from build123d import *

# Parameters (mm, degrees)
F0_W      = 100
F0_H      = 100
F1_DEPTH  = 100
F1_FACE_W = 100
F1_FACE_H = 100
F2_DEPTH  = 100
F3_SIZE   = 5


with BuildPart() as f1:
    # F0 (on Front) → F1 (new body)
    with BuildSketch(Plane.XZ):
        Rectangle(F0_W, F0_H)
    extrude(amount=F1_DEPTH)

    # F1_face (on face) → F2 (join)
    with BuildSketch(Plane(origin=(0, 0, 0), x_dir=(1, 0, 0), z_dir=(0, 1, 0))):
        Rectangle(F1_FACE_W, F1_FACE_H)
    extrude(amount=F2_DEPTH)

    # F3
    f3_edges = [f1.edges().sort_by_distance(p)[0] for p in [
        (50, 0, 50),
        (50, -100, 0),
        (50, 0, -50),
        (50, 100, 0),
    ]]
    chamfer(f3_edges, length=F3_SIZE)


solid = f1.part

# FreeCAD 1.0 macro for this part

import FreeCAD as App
import Part
import Sketcher
Q = App.Units.Quantity


def edges_at(feature, points):
    """Names of the edges that pass closest to the given points."""
    edges = feature.Shape.Edges
    near = lambda p: min(range(len(edges)), key=lambda i: edges[i].distToShape(Part.Vertex(*p))[0])
    return sorted({f"Edge{near(p) + 1}" for p in points})


def add_polygon(sketch, points):
    """Adds a closed chain of lines whose ends are joined by coincident constraints."""
    first, n = sketch.GeometryCount, len(points)
    for a, b in zip(points, points[1:] + points[:1]):
        sketch.addGeometry(Part.LineSegment(App.Vector(*a, 0), App.Vector(*b, 0)), False)
    for i in range(n):
        sketch.addConstraint(Sketcher.Constraint("Coincident", first + i, 2, first + (i + 1) % n, 1))

doc = App.newDocument("Part")
body = doc.addObject("PartDesign::Body", "Body")

sketch1 = body.newObject("Sketcher::SketchObject", "Sketch")
sketch1.AttachmentSupport = (doc.getObject("XZ_Plane"), [""])
sketch1.MapMode = "FlatFace"
add_polygon(sketch1, [(-50, 50), (-50, -50), (50, -50), (50, 50)])
sketch1.addConstraint(Sketcher.Constraint("Vertical", 0))
sketch1.addConstraint(Sketcher.Constraint("Horizontal", 1))
sketch1.addConstraint(Sketcher.Constraint("Vertical", 2))
sketch1.addConstraint(Sketcher.Constraint("Horizontal", 3))
sketch1.addConstraint(Sketcher.Constraint("Symmetric", 0, 2, 2, 2, -1, 1))
sketch1.addConstraint(Sketcher.Constraint("Equal", 3, 0))
sketch1.addConstraint(Sketcher.Constraint("DistanceX", 1, 1, 1, 2, Q("100 mm")))
pad1 = body.newObject("PartDesign::Pad", "Pad")
pad1.Profile = sketch1
pad1.Length = 100

sketch2 = body.newObject("Sketcher::SketchObject", "Sketch001")
sketch2.AttachmentSupport = (doc.getObject("XZ_Plane"), [""])
sketch2.MapMode = "FlatFace"
add_polygon(sketch2, [(-50, -50), (-50, 50), (50, 50), (50, -50)])
sketch2.addConstraint(Sketcher.Constraint("Vertical", 0))
sketch2.addConstraint(Sketcher.Constraint("Horizontal", 1))
sketch2.addConstraint(Sketcher.Constraint("Vertical", 2))
sketch2.addConstraint(Sketcher.Constraint("Horizontal", 3))
sketch2.addConstraint(Sketcher.Constraint("Symmetric", 0, 2, 2, 2, -1, 1))
sketch2.addConstraint(Sketcher.Constraint("Equal", 3, 0))
sketch2.addConstraint(Sketcher.Constraint("DistanceX", 1, 1, 1, 2, Q("100 mm")))
pad2 = body.newObject("PartDesign::Pad", "Pad001")
pad2.Profile = sketch2
pad2.Length = 100
pad2.Reversed = True
doc.recompute()

chamfer = body.newObject("PartDesign::Chamfer", "Chamfer")
chamfer.Base = (pad2, edges_at(pad2, [
    (50, 0, 50),
    (50, -100, 0),
    (50, 0, -50),
    (50, 100, 0),
]))
chamfer.Size = 5

doc.recompute()
